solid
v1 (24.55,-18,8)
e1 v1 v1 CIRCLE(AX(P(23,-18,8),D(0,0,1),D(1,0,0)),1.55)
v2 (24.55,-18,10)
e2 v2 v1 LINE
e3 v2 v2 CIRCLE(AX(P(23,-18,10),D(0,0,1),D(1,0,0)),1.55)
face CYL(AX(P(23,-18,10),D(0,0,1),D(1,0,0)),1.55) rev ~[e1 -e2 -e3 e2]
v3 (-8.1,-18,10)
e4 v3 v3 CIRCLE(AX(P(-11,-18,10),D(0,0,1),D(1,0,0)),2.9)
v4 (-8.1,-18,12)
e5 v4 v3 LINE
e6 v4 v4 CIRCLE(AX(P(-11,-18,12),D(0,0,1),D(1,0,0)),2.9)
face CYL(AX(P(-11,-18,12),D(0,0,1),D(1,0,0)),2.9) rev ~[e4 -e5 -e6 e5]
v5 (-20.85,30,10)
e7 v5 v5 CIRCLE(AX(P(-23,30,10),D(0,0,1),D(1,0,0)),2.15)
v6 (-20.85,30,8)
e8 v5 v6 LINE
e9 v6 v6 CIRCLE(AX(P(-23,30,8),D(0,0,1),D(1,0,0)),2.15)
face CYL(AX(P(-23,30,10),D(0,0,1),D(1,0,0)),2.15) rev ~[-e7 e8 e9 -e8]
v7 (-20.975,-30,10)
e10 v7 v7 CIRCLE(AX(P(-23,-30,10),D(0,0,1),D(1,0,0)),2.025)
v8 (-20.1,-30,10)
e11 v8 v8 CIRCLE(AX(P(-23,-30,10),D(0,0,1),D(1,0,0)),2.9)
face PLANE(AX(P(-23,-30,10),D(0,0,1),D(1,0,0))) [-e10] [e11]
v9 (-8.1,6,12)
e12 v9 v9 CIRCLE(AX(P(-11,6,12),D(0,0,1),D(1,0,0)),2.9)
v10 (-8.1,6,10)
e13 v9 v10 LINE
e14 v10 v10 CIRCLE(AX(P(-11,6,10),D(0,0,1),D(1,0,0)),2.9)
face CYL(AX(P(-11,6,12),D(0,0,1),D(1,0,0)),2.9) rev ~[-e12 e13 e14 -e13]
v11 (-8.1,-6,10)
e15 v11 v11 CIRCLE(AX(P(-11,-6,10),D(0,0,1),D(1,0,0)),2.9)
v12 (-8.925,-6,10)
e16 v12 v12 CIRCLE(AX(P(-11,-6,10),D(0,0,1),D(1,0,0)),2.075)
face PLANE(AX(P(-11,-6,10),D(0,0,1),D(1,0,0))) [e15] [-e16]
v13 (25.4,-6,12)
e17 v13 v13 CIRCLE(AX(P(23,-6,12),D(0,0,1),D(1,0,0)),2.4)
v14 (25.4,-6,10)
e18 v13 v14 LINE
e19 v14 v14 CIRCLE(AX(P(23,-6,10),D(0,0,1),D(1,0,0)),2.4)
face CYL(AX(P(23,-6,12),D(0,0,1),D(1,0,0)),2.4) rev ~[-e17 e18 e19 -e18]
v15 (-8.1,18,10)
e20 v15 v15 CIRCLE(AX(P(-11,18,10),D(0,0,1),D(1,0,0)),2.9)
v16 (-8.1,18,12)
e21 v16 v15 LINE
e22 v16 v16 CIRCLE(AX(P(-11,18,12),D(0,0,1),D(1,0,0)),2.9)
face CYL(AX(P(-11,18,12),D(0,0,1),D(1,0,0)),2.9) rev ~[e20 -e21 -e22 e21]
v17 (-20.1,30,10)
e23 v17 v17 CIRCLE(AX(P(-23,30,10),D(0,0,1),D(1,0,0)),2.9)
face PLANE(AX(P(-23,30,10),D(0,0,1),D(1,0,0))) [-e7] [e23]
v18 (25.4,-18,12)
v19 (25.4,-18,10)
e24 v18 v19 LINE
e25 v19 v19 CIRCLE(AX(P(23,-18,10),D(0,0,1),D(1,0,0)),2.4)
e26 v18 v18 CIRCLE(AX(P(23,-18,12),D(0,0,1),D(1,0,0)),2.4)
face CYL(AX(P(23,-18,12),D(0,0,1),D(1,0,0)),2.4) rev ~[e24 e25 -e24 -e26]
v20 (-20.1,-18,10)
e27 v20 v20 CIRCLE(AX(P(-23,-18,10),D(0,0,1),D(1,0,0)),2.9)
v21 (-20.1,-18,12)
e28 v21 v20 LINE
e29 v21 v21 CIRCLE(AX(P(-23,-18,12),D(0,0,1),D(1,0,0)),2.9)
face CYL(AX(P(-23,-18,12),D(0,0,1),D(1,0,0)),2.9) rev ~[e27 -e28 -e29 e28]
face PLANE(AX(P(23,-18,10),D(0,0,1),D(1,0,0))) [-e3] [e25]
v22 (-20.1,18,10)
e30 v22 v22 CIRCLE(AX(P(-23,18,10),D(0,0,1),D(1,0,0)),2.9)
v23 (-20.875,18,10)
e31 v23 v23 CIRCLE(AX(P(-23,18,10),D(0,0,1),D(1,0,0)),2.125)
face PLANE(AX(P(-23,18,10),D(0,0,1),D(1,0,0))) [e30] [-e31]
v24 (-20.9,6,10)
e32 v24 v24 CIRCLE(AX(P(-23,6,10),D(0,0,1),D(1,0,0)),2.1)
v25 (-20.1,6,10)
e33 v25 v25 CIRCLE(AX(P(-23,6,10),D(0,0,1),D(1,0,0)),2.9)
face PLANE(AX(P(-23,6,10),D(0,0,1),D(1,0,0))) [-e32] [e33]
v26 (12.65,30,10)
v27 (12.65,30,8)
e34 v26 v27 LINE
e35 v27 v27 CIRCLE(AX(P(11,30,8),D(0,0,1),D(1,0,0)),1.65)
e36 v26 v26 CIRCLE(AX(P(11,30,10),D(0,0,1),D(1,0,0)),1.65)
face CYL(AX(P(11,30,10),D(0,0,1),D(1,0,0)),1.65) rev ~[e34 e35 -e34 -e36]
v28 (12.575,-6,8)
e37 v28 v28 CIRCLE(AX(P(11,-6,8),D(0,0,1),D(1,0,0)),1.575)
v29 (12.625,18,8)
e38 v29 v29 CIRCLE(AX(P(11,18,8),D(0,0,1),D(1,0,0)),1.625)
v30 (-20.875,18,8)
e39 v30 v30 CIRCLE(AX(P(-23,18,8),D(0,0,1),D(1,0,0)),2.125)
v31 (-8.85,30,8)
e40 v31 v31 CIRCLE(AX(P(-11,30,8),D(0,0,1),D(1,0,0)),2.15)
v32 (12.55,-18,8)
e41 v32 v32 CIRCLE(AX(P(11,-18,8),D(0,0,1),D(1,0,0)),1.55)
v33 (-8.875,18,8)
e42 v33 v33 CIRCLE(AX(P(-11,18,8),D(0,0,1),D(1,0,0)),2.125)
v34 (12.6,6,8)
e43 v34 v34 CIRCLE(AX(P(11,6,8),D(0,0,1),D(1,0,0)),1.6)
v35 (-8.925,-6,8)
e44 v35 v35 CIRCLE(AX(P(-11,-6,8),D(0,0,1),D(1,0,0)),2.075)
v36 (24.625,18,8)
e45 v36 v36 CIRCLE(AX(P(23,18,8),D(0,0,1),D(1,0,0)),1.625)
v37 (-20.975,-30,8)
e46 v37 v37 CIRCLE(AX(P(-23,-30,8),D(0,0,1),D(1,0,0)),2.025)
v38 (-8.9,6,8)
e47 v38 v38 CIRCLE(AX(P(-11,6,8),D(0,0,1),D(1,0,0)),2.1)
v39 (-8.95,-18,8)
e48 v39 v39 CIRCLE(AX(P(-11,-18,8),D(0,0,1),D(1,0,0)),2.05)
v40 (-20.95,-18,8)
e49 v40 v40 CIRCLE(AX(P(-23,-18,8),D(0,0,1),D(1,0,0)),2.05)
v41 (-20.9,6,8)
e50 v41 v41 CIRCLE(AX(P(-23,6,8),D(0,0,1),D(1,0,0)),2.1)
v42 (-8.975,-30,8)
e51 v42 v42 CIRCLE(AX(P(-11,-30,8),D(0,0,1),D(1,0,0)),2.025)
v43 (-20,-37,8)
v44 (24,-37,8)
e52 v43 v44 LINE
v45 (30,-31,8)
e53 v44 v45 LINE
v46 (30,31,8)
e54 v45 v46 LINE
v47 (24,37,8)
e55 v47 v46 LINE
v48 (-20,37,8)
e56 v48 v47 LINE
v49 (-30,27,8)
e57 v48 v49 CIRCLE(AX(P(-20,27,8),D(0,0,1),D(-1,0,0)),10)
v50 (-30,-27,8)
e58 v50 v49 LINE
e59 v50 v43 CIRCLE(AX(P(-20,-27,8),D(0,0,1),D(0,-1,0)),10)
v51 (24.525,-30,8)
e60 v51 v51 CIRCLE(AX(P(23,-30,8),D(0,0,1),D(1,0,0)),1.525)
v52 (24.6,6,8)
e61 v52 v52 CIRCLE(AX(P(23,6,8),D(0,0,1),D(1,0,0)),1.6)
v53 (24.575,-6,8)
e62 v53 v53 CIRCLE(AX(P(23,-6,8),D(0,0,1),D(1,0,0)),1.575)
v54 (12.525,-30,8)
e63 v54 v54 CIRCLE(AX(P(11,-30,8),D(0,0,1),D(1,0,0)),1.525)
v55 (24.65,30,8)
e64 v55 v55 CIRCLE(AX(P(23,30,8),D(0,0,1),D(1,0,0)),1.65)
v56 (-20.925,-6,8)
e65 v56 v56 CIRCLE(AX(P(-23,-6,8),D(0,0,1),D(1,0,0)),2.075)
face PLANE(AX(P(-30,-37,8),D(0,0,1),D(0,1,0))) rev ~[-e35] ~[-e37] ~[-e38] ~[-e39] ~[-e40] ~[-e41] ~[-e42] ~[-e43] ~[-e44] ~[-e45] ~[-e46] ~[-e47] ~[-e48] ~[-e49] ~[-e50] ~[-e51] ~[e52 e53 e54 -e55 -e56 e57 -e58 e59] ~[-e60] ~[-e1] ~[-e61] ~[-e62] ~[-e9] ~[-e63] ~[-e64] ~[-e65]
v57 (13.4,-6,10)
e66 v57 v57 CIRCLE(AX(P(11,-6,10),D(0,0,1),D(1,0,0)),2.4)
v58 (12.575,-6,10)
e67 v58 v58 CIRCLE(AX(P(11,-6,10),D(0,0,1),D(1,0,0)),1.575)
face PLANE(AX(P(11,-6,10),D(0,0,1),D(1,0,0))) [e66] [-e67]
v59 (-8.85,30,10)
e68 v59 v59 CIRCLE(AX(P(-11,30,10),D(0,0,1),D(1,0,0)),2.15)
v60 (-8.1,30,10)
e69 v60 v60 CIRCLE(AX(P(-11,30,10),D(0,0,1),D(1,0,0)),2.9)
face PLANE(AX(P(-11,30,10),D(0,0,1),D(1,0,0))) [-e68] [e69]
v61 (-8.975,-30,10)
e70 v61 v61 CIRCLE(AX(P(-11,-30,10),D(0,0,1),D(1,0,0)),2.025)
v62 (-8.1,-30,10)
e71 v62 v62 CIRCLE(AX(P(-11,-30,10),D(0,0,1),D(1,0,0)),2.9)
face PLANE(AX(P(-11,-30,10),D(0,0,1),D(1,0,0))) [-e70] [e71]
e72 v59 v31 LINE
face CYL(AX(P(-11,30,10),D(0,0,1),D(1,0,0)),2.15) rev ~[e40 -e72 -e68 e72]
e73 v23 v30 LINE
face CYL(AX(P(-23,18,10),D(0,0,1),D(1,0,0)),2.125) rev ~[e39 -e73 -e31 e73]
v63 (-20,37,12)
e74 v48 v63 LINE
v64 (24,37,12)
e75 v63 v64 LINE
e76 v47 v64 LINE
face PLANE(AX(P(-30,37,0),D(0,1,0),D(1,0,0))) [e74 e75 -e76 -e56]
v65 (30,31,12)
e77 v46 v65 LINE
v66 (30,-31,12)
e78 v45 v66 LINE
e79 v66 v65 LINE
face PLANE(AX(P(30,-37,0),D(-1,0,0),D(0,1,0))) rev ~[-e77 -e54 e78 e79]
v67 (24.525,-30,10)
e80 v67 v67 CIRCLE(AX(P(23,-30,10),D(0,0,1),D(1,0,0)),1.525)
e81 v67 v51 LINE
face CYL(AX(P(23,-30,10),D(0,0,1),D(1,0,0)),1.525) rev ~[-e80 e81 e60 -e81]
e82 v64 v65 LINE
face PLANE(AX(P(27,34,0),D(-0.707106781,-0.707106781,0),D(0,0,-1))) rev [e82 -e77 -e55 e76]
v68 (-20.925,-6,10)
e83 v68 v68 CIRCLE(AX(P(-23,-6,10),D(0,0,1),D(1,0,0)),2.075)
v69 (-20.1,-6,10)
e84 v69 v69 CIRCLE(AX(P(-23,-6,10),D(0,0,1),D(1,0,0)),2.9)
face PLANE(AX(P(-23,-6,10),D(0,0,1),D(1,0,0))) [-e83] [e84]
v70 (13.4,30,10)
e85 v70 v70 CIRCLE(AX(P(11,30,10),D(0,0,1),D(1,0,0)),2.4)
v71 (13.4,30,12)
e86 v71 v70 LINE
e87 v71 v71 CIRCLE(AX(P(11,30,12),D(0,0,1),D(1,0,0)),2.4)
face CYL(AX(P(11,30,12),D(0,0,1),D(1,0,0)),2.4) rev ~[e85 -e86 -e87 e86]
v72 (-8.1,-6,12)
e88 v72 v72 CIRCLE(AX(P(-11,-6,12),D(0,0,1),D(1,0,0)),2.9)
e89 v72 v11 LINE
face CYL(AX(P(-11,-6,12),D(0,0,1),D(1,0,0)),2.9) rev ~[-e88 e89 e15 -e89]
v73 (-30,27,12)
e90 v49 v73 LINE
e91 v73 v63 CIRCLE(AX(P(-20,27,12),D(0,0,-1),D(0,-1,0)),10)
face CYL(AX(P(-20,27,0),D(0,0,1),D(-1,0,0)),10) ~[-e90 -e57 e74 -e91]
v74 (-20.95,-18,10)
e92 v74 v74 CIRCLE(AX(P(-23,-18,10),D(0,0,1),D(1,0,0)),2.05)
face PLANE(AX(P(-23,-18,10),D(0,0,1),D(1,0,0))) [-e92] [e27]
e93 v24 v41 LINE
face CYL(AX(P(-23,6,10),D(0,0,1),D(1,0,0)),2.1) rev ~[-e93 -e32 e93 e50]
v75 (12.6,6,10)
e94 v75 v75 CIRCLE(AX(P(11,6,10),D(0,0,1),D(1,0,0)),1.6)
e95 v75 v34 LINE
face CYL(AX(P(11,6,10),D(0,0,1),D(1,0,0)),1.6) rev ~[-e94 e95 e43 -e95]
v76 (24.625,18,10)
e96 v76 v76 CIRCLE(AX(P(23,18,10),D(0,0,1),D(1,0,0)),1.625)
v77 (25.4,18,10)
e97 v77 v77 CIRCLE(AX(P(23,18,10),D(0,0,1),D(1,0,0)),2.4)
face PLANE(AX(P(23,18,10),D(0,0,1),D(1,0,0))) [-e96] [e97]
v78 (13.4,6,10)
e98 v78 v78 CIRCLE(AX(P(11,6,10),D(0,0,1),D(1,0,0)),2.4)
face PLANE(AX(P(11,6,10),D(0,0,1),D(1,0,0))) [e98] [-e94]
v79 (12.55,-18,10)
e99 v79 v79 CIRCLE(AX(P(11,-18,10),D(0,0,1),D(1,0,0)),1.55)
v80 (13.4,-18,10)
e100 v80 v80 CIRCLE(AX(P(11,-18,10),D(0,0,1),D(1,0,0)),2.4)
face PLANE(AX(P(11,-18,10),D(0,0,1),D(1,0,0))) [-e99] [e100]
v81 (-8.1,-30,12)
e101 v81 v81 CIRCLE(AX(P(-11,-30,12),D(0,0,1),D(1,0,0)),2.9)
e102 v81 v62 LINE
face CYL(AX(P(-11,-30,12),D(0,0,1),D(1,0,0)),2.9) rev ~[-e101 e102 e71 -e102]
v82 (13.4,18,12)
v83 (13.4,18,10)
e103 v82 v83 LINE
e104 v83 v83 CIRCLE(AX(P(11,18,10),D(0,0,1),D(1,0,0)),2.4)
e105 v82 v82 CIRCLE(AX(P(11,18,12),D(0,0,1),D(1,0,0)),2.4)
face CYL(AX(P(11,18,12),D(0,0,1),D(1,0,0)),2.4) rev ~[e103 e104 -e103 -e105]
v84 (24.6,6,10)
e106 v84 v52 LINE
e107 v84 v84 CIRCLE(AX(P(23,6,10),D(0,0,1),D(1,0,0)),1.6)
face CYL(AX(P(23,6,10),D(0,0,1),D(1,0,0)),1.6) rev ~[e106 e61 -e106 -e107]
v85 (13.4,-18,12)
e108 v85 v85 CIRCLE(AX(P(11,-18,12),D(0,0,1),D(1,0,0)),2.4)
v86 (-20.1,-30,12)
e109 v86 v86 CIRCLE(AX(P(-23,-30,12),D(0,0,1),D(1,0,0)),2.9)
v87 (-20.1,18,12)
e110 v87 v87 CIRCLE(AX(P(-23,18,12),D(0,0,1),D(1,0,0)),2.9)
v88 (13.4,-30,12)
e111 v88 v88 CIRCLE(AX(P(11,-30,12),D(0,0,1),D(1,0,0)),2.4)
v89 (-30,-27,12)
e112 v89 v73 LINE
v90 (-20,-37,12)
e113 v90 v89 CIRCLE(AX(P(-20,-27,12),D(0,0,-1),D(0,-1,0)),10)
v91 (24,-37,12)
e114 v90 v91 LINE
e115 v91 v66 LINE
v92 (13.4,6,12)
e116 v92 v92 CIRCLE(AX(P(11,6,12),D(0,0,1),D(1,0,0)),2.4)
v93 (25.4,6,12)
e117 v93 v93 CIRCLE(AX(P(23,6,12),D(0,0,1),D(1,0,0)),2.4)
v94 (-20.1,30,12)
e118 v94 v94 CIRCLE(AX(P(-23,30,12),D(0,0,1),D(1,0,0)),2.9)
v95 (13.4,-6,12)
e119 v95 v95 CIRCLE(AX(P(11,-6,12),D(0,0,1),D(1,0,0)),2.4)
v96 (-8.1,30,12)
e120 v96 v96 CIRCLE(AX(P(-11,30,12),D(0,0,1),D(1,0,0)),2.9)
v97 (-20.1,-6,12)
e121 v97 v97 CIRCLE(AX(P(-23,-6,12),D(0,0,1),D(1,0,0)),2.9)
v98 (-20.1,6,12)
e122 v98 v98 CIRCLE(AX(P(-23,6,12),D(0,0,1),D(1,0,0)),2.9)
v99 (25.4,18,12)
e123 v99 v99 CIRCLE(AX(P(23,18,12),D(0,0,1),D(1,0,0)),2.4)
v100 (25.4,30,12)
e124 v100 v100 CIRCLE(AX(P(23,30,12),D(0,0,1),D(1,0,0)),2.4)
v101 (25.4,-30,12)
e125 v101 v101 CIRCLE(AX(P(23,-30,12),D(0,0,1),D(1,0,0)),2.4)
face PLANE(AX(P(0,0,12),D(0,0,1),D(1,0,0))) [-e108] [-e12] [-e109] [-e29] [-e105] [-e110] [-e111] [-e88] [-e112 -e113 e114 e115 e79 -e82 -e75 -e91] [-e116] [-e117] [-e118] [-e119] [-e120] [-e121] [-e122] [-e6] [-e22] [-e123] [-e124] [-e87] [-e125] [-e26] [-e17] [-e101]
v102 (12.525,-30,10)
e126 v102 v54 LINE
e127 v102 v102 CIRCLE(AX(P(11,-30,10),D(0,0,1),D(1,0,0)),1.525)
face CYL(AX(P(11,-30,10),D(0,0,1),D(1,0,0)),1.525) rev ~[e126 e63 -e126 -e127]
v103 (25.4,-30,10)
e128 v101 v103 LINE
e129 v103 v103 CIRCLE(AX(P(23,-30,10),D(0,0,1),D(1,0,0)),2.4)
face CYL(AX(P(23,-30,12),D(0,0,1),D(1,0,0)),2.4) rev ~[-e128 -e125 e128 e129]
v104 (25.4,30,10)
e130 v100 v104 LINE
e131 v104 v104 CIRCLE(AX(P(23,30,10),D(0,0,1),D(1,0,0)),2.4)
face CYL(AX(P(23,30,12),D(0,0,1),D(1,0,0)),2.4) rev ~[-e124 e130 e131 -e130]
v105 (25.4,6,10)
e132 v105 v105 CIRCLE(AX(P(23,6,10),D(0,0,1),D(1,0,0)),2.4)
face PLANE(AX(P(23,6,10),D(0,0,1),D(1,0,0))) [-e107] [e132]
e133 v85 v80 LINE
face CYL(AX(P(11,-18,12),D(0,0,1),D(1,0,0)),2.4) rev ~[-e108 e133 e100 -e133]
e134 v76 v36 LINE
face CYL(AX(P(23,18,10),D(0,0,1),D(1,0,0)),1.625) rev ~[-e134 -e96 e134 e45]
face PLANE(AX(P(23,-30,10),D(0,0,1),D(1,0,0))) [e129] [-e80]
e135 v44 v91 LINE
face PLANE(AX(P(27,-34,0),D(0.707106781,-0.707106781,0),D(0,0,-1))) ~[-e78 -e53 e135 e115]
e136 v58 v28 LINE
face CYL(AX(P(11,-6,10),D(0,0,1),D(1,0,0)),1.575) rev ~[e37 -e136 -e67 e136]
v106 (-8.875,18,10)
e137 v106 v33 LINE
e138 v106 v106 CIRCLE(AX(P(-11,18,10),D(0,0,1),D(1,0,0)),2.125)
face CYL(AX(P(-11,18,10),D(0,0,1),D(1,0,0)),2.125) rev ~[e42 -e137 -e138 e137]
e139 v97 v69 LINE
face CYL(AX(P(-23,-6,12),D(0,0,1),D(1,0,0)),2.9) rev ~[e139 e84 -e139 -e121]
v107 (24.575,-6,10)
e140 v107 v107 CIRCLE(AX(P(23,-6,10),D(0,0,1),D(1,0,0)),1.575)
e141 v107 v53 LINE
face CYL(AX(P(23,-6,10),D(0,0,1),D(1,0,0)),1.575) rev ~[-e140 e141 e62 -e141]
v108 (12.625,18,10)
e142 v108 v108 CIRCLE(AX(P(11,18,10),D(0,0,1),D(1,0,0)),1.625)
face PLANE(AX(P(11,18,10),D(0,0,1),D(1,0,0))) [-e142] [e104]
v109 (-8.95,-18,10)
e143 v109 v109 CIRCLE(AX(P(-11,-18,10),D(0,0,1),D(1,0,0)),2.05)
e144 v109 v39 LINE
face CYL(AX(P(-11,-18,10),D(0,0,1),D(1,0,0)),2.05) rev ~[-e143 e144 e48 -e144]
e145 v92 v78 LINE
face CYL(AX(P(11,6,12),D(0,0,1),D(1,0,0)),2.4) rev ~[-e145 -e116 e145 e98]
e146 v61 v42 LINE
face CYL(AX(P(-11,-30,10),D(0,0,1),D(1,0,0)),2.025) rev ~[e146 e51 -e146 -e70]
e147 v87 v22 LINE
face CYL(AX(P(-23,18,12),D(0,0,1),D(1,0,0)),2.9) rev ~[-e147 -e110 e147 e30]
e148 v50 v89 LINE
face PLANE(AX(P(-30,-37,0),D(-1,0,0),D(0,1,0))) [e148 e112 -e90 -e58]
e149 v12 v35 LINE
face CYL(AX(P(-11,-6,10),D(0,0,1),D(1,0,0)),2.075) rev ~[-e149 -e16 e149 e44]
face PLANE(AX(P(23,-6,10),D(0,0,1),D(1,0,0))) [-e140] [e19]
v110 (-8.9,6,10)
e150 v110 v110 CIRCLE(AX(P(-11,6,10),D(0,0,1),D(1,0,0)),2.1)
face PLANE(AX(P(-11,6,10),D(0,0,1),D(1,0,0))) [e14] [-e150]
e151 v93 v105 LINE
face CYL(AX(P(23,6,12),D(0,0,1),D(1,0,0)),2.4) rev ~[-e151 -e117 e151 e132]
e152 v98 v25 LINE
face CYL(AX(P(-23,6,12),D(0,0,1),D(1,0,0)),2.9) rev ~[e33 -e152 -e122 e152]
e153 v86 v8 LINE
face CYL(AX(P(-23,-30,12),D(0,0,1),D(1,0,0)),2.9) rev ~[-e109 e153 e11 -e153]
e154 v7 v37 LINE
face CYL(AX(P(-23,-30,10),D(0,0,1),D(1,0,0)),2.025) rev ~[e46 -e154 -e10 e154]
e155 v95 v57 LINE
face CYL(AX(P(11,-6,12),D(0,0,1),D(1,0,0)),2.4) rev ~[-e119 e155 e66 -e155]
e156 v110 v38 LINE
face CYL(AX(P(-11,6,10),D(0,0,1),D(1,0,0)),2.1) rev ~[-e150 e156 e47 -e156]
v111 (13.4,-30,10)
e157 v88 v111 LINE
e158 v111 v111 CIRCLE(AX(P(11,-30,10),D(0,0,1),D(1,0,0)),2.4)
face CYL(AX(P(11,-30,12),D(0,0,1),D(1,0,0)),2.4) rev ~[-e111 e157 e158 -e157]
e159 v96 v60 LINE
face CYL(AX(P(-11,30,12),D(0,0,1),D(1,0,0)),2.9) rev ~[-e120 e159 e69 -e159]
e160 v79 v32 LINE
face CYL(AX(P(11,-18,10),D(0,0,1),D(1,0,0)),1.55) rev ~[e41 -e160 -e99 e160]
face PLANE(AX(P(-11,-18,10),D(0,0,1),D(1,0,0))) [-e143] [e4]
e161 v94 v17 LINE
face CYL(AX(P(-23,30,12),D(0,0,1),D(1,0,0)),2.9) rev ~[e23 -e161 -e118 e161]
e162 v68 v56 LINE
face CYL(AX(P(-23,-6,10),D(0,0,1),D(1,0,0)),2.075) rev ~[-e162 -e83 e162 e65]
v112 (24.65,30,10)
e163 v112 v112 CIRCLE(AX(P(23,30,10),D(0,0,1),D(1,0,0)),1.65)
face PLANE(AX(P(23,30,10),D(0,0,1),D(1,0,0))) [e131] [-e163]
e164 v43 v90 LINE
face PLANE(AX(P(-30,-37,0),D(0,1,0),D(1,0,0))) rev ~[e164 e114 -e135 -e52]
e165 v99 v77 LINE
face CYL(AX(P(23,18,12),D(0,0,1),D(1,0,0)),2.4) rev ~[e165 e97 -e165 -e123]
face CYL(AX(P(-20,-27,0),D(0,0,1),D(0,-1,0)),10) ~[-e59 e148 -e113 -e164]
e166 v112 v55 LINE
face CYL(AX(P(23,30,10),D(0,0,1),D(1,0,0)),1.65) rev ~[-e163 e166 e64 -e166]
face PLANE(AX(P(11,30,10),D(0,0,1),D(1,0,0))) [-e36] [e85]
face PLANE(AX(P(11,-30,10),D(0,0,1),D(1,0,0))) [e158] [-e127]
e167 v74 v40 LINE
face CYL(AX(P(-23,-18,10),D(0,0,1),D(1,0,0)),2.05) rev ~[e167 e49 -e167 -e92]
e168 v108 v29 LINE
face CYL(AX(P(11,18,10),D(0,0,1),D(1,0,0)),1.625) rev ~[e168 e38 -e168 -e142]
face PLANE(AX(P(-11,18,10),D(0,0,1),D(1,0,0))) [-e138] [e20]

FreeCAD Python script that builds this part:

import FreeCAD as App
import Part
import Sketcher
from FreeCAD import Vector


def edges_at(feature, points):
    """Names of the edges that pass closest to the given points."""
    edges = feature.Shape.Edges
    near = lambda p: min(range(len(edges)), key=lambda i: edges[i].distToShape(Part.Vertex(*p))[0])
    return sorted({f"Edge{near(p) + 1}" for p in points})


def add_polygon(sketch, points):
    """Adds a closed chain of lines whose ends are joined by coincident constraints."""
    first, n = sketch.GeometryCount, len(points)
    for a, b in zip(points, points[1:] + points[:1]):
        sketch.addGeometry(Part.LineSegment(App.Vector(*a, 0), App.Vector(*b, 0)), False)
    for i in range(n):
        sketch.addConstraint(Sketcher.Constraint("Coincident", first + i, 2, first + (i + 1) % n, 1))

doc = App.newDocument("Part")
body = doc.addObject("PartDesign::Body", "Body")

# Sketch on XY plane
sketch1 = doc.addObject("Sketcher::SketchObject", "Sketch")
body.addObject(sketch1)
sketch1.AttachmentSupport = (doc.XY_Plane, [""])
sketch1.MapMode = "FlatFace"
add_polygon(sketch1, [(-30, 37), (-30, -37), (30, -37), (30, 37)])  # lines 0-3
sketch1.addConstraint(Sketcher.Constraint("Vertical", 0))
sketch1.addConstraint(Sketcher.Constraint("Horizontal", 1))
sketch1.addConstraint(Sketcher.Constraint("Vertical", 2))
sketch1.addConstraint(Sketcher.Constraint("Horizontal", 3))
sketch1.addConstraint(Sketcher.Constraint("Symmetric", 0, 2, 2, 2, -1, 1))
sketch1.addConstraint(Sketcher.Constraint("DistanceX", 1, 1, 1, 2, 60.0))
sketch1.addConstraint(Sketcher.Constraint("DistanceY", 0, 2, 0, 1, 74.0))
pad1 = doc.addObject("PartDesign::Pad", "Pad")
body.addObject(pad1)
pad1.Profile = sketch1
pad1.Length = 12

# Sketch on XY plane
sketch2 = doc.addObject("Sketcher::SketchObject", "Sketch001")
body.addObject(sketch2)
sketch2.AttachmentSupport = (doc.XY_Plane, [""])
sketch2.MapMode = "FlatFace"
sketch2.AttachmentOffset = App.Placement(Vector(0, 0, 12), App.Rotation())
sketch2.addGeometry(Part.Circle(Vector(-23, -30, 0), Vector(0, 0, 1), 1.65), False)
sketch2.addGeometry(Part.Circle(Vector(23, -30, 0), Vector(0, 0, 1), 1.15), False)
sketch2.addGeometry(Part.Circle(Vector(-11, -30, 0), Vector(0, 0, 1), 1.65), False)
sketch2.addGeometry(Part.Circle(Vector(-11, -18, 0), Vector(0, 0, 1), 1.65), False)
sketch2.addGeometry(Part.Circle(Vector(-11, -6, 0), Vector(0, 0, 1), 1.65), False)
sketch2.addGeometry(Part.Circle(Vector(-11, 6, 0), Vector(0, 0, 1), 1.65), False)
sketch2.addGeometry(Part.Circle(Vector(-23, -18, 0), Vector(0, 0, 1), 1.65), False)
sketch2.addGeometry(Part.Circle(Vector(-23, -6, 0), Vector(0, 0, 1), 1.65), False)
sketch2.addGeometry(Part.Circle(Vector(-23, 6, 0), Vector(0, 0, 1), 1.65), False)
sketch2.addGeometry(Part.Circle(Vector(11, -30, 0), Vector(0, 0, 1), 1.15), False)
sketch2.addGeometry(Part.Circle(Vector(11, -18, 0), Vector(0, 0, 1), 1.15), False)
sketch2.addGeometry(Part.Circle(Vector(11, -6, 0), Vector(0, 0, 1), 1.15), False)
sketch2.addGeometry(Part.Circle(Vector(11, 6, 0), Vector(0, 0, 1), 1.15), False)
sketch2.addGeometry(Part.Circle(Vector(23, -18, 0), Vector(0, 0, 1), 1.15), False)
sketch2.addGeometry(Part.Circle(Vector(23, -6, 0), Vector(0, 0, 1), 1.15), False)
sketch2.addGeometry(Part.Circle(Vector(23, 6, 0), Vector(0, 0, 1), 1.15), False)
sketch2.addGeometry(Part.Circle(Vector(-23, 18, 0), Vector(0, 0, 1), 1.65), False)
sketch2.addGeometry(Part.Circle(Vector(-11, 18, 0), Vector(0, 0, 1), 1.65), False)
sketch2.addGeometry(Part.Circle(Vector(-23, 30, 0), Vector(0, 0, 1), 1.65), False)
sketch2.addGeometry(Part.Circle(Vector(-11, 30, 0), Vector(0, 0, 1), 1.65), False)
sketch2.addGeometry(Part.Circle(Vector(23, 18, 0), Vector(0, 0, 1), 1.15), False)
sketch2.addGeometry(Part.Circle(Vector(11, 18, 0), Vector(0, 0, 1), 1.15), False)
sketch2.addGeometry(Part.Circle(Vector(23, 30, 0), Vector(0, 0, 1), 1.15), False)
sketch2.addGeometry(Part.Circle(Vector(11, 30, 0), Vector(0, 0, 1), 1.15), False)
sketch2.addConstraint(Sketcher.Constraint("Equal", 0, 2))
sketch2.addConstraint(Sketcher.Constraint("Equal", 2, 3))
sketch2.addConstraint(Sketcher.Constraint("Equal", 3, 4))
sketch2.addConstraint(Sketcher.Constraint("Equal", 4, 5))
sketch2.addConstraint(Sketcher.Constraint("Equal", 5, 6))
sketch2.addConstraint(Sketcher.Constraint("Equal", 6, 7))
sketch2.addConstraint(Sketcher.Constraint("Equal", 7, 8))
sketch2.addConstraint(Sketcher.Constraint("Equal", 1, 9))
sketch2.addConstraint(Sketcher.Constraint("Equal", 9, 10))
sketch2.addConstraint(Sketcher.Constraint("Equal", 10, 11))
sketch2.addConstraint(Sketcher.Constraint("Equal", 11, 12))
sketch2.addConstraint(Sketcher.Constraint("Equal", 12, 13))
sketch2.addConstraint(Sketcher.Constraint("Equal", 13, 14))
sketch2.addConstraint(Sketcher.Constraint("Equal", 14, 15))
sketch2.addConstraint(Sketcher.Constraint("Equal", 8, 16))
sketch2.addConstraint(Sketcher.Constraint("Equal", 16, 17))
sketch2.addConstraint(Sketcher.Constraint("Equal", 17, 18))
sketch2.addConstraint(Sketcher.Constraint("Equal", 18, 19))
sketch2.addConstraint(Sketcher.Constraint("Equal", 15, 20))
sketch2.addConstraint(Sketcher.Constraint("Equal", 20, 21))
sketch2.addConstraint(Sketcher.Constraint("Equal", 21, 22))
sketch2.addConstraint(Sketcher.Constraint("Equal", 22, 23))
sketch2.addConstraint(Sketcher.Constraint("Symmetric", 5, 3, 11, 3, -1, 1))
sketch2.addConstraint(Sketcher.Constraint("Symmetric", 4, 3, 12, 3, -1, 1))
sketch2.addConstraint(Sketcher.Constraint("Symmetric", 8, 3, 14, 3, -1, 1))
sketch2.addConstraint(Sketcher.Constraint("Symmetric", 7, 3, 15, 3, -1, 1))
sketch2.addConstraint(Sketcher.Constraint("Symmetric", 13, 3, 16, 3, -1, 1))
sketch2.addConstraint(Sketcher.Constraint("Symmetric", 10, 3, 17, 3, -1, 1))
sketch2.addConstraint(Sketcher.Constraint("Symmetric", 1, 3, 18, 3, -1, 1))
sketch2.addConstraint(Sketcher.Constraint("Symmetric", 9, 3, 19, 3, -1, 1))
sketch2.addConstraint(Sketcher.Constraint("Symmetric", 6, 3, 20, 3, -1, 1))
sketch2.addConstraint(Sketcher.Constraint("Symmetric", 3, 3, 21, 3, -1, 1))
sketch2.addConstraint(Sketcher.Constraint("Symmetric", 0, 3, 22, 3, -1, 1))
sketch2.addConstraint(Sketcher.Constraint("Symmetric", 2, 3, 23, 3, -1, 1))
sketch2.addConstraint(Sketcher.Constraint("Symmetric", 0, 3, 1, 3, -2))
sketch2.addConstraint(Sketcher.Constraint("Symmetric", 2, 3, 9, 3, -2))
sketch2.addConstraint(Sketcher.Constraint("Symmetric", 3, 3, 10, 3, -2))
sketch2.addConstraint(Sketcher.Constraint("Symmetric", 4, 3, 11, 3, -2))
sketch2.addConstraint(Sketcher.Constraint("Symmetric", 6, 3, 13, 3, -2))
sketch2.addConstraint(Sketcher.Constraint("Symmetric", 7, 3, 14, 3, -2))
sketch2.addConstraint(Sketcher.Constraint("Horizontal", 1, 3, 2, 3))
sketch2.addConstraint(Sketcher.Constraint("Horizontal", 3, 3, 6, 3))
sketch2.addConstraint(Sketcher.Constraint("Horizontal", 4, 3, 7, 3))
sketch2.addConstraint(Sketcher.Constraint("Vertical", 2, 3, 3, 3))
sketch2.addConstraint(Sketcher.Constraint("Vertical", 3, 3, 4, 3))
sketch2.addConstraint(Sketcher.Constraint("Vertical", 0, 3, 6, 3))
sketch2.addConstraint(Sketcher.Constraint("Vertical", 6, 3, 7, 3))
sketch2.addConstraint(Sketcher.Constraint("Diameter", 0, 3.3))
sketch2.addConstraint(Sketcher.Constraint("Diameter", 1, 2.3))
sketch2.addConstraint(Sketcher.Constraint("DistanceX", 0, 3, -1, 1, 23.0))
sketch2.addConstraint(Sketcher.Constraint("DistanceY", 0, 3, -1, 1, 30.0))
sketch2.addConstraint(Sketcher.Constraint("DistanceX", 2, 3, -1, 1, 11.0))
sketch2.addConstraint(Sketcher.Constraint("DistanceY", 3, 3, -1, 1, 18.0))
sketch2.addConstraint(Sketcher.Constraint("DistanceY", 4, 3, -1, 1, 6.0))
pocket1 = doc.addObject("PartDesign::Pocket", "Pocket")
body.addObject(pocket1)
pocket1.Profile = sketch2
pocket1.Type = "ThroughAll"
doc.recompute()

chamfer = doc.addObject("PartDesign::Chamfer", "Chamfer")
body.addObject(chamfer)
chamfer.Base = (pocket1, edges_at(pocket1, [(30, 37, 6), (30, -37, 6)]))
chamfer.Size = 6
doc.recompute()

fillet = doc.addObject("PartDesign::Fillet", "Fillet")
body.addObject(fillet)
fillet.Base = (chamfer, edges_at(chamfer, [(-30, 37, 6), (-30, -37, 6)]))
fillet.Radius = 10

# Sketch on XY plane
sketch3 = doc.addObject("Sketcher::SketchObject", "Sketch002")
body.addObject(sketch3)
sketch3.AttachmentSupport = (doc.XY_Plane, [""])
sketch3.MapMode = "FlatFace"
sketch3.AttachmentOffset = App.Placement(Vector(0, 0, 12), App.Rotation())
sketch3.addGeometry(Part.Circle(Vector(-23, -30, 0), Vector(0, 0, 1), 2.9), False)
sketch3.addGeometry(Part.Circle(Vector(-11, -30, 0), Vector(0, 0, 1), 2.9), False)
sketch3.addGeometry(Part.Circle(Vector(-11, -18, 0), Vector(0, 0, 1), 2.9), False)
sketch3.addGeometry(Part.Circle(Vector(-11, -6, 0), Vector(0, 0, 1), 2.9), False)
sketch3.addGeometry(Part.Circle(Vector(-11, 6, 0), Vector(0, 0, 1), 2.9), False)
sketch3.addGeometry(Part.Circle(Vector(-23, -18, 0), Vector(0, 0, 1), 2.9), False)
sketch3.addGeometry(Part.Circle(Vector(-23, -6, 0), Vector(0, 0, 1), 2.9), False)
sketch3.addGeometry(Part.Circle(Vector(-23, 6, 0), Vector(0, 0, 1), 2.9), False)
sketch3.addGeometry(Part.Circle(Vector(11, -30, 0), Vector(0, 0, 1), 2.4), False)
sketch3.addGeometry(Part.Circle(Vector(23, -30, 0), Vector(0, 0, 1), 2.4), False)
sketch3.addGeometry(Part.Circle(Vector(23, -18, 0), Vector(0, 0, 1), 2.4), False)
sketch3.addGeometry(Part.Circle(Vector(23, -6, 0), Vector(0, 0, 1), 2.4), False)
sketch3.addGeometry(Part.Circle(Vector(23, 6, 0), Vector(0, 0, 1), 2.4), False)
sketch3.addGeometry(Part.Circle(Vector(11, -18, 0), Vector(0, 0, 1), 2.4), False)
sketch3.addGeometry(Part.Circle(Vector(11, -6, 0), Vector(0, 0, 1), 2.4), False)
sketch3.addGeometry(Part.Circle(Vector(11, 6, 0), Vector(0, 0, 1), 2.4), False)
sketch3.addGeometry(Part.Circle(Vector(-23, 18, 0), Vector(0, 0, 1), 2.9), False)
sketch3.addGeometry(Part.Circle(Vector(-11, 18, 0), Vector(0, 0, 1), 2.9), False)
sketch3.addGeometry(Part.Circle(Vector(-23, 30, 0), Vector(0, 0, 1), 2.9), False)
sketch3.addGeometry(Part.Circle(Vector(-11, 30, 0), Vector(0, 0, 1), 2.9), False)
sketch3.addGeometry(Part.Circle(Vector(11, 18, 0), Vector(0, 0, 1), 2.4), False)
sketch3.addGeometry(Part.Circle(Vector(23, 18, 0), Vector(0, 0, 1), 2.4), False)
sketch3.addGeometry(Part.Circle(Vector(11, 30, 0), Vector(0, 0, 1), 2.4), False)
sketch3.addGeometry(Part.Circle(Vector(23, 30, 0), Vector(0, 0, 1), 2.4), False)
sketch3.addConstraint(Sketcher.Constraint("Equal", 0, 1))
sketch3.addConstraint(Sketcher.Constraint("Equal", 1, 2))
sketch3.addConstraint(Sketcher.Constraint("Equal", 2, 3))
sketch3.addConstraint(Sketcher.Constraint("Equal", 3, 4))
sketch3.addConstraint(Sketcher.Constraint("Equal", 4, 5))
sketch3.addConstraint(Sketcher.Constraint("Equal", 5, 6))
sketch3.addConstraint(Sketcher.Constraint("Equal", 6, 7))
sketch3.addConstraint(Sketcher.Constraint("Equal", 8, 9))
sketch3.addConstraint(Sketcher.Constraint("Equal", 9, 10))
sketch3.addConstraint(Sketcher.Constraint("Equal", 10, 11))
sketch3.addConstraint(Sketcher.Constraint("Equal", 11, 12))
sketch3.addConstraint(Sketcher.Constraint("Equal", 12, 13))
sketch3.addConstraint(Sketcher.Constraint("Equal", 13, 14))
sketch3.addConstraint(Sketcher.Constraint("Equal", 14, 15))
sketch3.addConstraint(Sketcher.Constraint("Equal", 7, 16))
sketch3.addConstraint(Sketcher.Constraint("Equal", 16, 17))
sketch3.addConstraint(Sketcher.Constraint("Equal", 17, 18))
sketch3.addConstraint(Sketcher.Constraint("Equal", 18, 19))
sketch3.addConstraint(Sketcher.Constraint("Equal", 15, 20))
sketch3.addConstraint(Sketcher.Constraint("Equal", 20, 21))
sketch3.addConstraint(Sketcher.Constraint("Equal", 21, 22))
sketch3.addConstraint(Sketcher.Constraint("Equal", 22, 23))
sketch3.addConstraint(Sketcher.Constraint("Symmetric", 7, 3, 11, 3, -1, 1))
sketch3.addConstraint(Sketcher.Constraint("Symmetric", 6, 3, 12, 3, -1, 1))
sketch3.addConstraint(Sketcher.Constraint("Symmetric", 4, 3, 14, 3, -1, 1))
sketch3.addConstraint(Sketcher.Constraint("Symmetric", 3, 3, 15, 3, -1, 1))
sketch3.addConstraint(Sketcher.Constraint("Symmetric", 10, 3, 16, 3, -1, 1))
sketch3.addConstraint(Sketcher.Constraint("Symmetric", 13, 3, 17, 3, -1, 1))
sketch3.addConstraint(Sketcher.Constraint("Symmetric", 9, 3, 18, 3, -1, 1))
sketch3.addConstraint(Sketcher.Constraint("Symmetric", 8, 3, 19, 3, -1, 1))
sketch3.addConstraint(Sketcher.Constraint("Symmetric", 2, 3, 20, 3, -1, 1))
sketch3.addConstraint(Sketcher.Constraint("Symmetric", 5, 3, 21, 3, -1, 1))
sketch3.addConstraint(Sketcher.Constraint("Symmetric", 1, 3, 22, 3, -1, 1))
sketch3.addConstraint(Sketcher.Constraint("Symmetric", 0, 3, 23, 3, -1, 1))
sketch3.addConstraint(Sketcher.Constraint("Symmetric", 1, 3, 8, 3, -2))
sketch3.addConstraint(Sketcher.Constraint("Symmetric", 0, 3, 9, 3, -2))
sketch3.addConstraint(Sketcher.Constraint("Symmetric", 5, 3, 10, 3, -2))
sketch3.addConstraint(Sketcher.Constraint("Symmetric", 6, 3, 11, 3, -2))
sketch3.addConstraint(Sketcher.Constraint("Symmetric", 2, 3, 13, 3, -2))
sketch3.addConstraint(Sketcher.Constraint("Symmetric", 3, 3, 14, 3, -2))
sketch3.addConstraint(Sketcher.Constraint("Horizontal", 0, 3, 1, 3))
sketch3.addConstraint(Sketcher.Constraint("Horizontal", 2, 3, 5, 3))
sketch3.addConstraint(Sketcher.Constraint("Horizontal", 3, 3, 6, 3))
sketch3.addConstraint(Sketcher.Constraint("Vertical", 1, 3, 2, 3))
sketch3.addConstraint(Sketcher.Constraint("Vertical", 2, 3, 3, 3))
sketch3.addConstraint(Sketcher.Constraint("Vertical", 0, 3, 5, 3))
sketch3.addConstraint(Sketcher.Constraint("Vertical", 5, 3, 6, 3))
sketch3.addConstraint(Sketcher.Constraint("Diameter", 0, 5.8))
sketch3.addConstraint(Sketcher.Constraint("Diameter", 8, 4.8))
sketch3.addConstraint(Sketcher.Constraint("DistanceX", 0, 3, -1, 1, 23.0))
sketch3.addConstraint(Sketcher.Constraint("DistanceY", 0, 3, -1, 1, 30.0))
sketch3.addConstraint(Sketcher.Constraint("DistanceX", 1, 3, -1, 1, 11.0))
sketch3.addConstraint(Sketcher.Constraint("DistanceY", 2, 3, -1, 1, 18.0))
sketch3.addConstraint(Sketcher.Constraint("DistanceY", 3, 3, -1, 1, 6.0))
pocket2 = doc.addObject("PartDesign::Pocket", "Pocket001")
body.addObject(pocket2)
pocket2.Profile = sketch3
pocket2.Length = 2

# Sketch on XY plane
sketch4 = doc.addObject("Sketcher::SketchObject", "Sketch003")
body.addObject(sketch4)
sketch4.AttachmentSupport = (doc.XY_Plane, [""])
sketch4.MapMode = "FlatFace"
sketch4.AttachmentOffset = App.Placement(Vector(0, 0, 10), App.Rotation())
sketch4.addGeometry(Part.Circle(Vector(-23, 30, 0), Vector(0, 0, 1), 2.15), False)
sketch4.addGeometry(Part.Circle(Vector(-23, 18, 0), Vector(0, 0, 1), 2.125), False)
sketch4.addGeometry(Part.Circle(Vector(-23, 6, 0), Vector(0, 0, 1), 2.1), False)
sketch4.addGeometry(Part.Circle(Vector(-23, -6, 0), Vector(0, 0, 1), 2.075), False)
sketch4.addGeometry(Part.Circle(Vector(-23, -18, 0), Vector(0, 0, 1), 2.05), False)
sketch4.addGeometry(Part.Circle(Vector(-23, -30, 0), Vector(0, 0, 1), 2.025), False)
sketch4.addGeometry(Part.Circle(Vector(-11, 30, 0), Vector(0, 0, 1), 2.15), False)
sketch4.addGeometry(Part.Circle(Vector(11, -30, 0), Vector(0, 0, 1), 1.525), False)
sketch4.addGeometry(Part.Circle(Vector(11, -18, 0), Vector(0, 0, 1), 1.55), False)
sketch4.addGeometry(Part.Circle(Vector(11, -6, 0), Vector(0, 0, 1), 1.575), False)
sketch4.addGeometry(Part.Circle(Vector(11, 6, 0), Vector(0, 0, 1), 1.6), False)
sketch4.addGeometry(Part.Circle(Vector(11, 18, 0), Vector(0, 0, 1), 1.625), False)
sketch4.addGeometry(Part.Circle(Vector(11, 30, 0), Vector(0, 0, 1), 1.65), False)
sketch4.addGeometry(Part.Circle(Vector(-11, 18, 0), Vector(0, 0, 1), 2.125), False)
sketch4.addGeometry(Part.Circle(Vector(-11, 6, 0), Vector(0, 0, 1), 2.1), False)
sketch4.addGeometry(Part.Circle(Vector(-11, -6, 0), Vector(0, 0, 1), 2.075), False)
sketch4.addGeometry(Part.Circle(Vector(-11, -18, 0), Vector(0, 0, 1), 2.05), False)
sketch4.addGeometry(Part.Circle(Vector(-11, -30, 0), Vector(0, 0, 1), 2.025), False)
sketch4.addGeometry(Part.Circle(Vector(23, -30, 0), Vector(0, 0, 1), 1.525), False)
sketch4.addGeometry(Part.Circle(Vector(23, -18, 0), Vector(0, 0, 1), 1.55), False)
sketch4.addGeometry(Part.Circle(Vector(23, -6, 0), Vector(0, 0, 1), 1.575), False)
sketch4.addGeometry(Part.Circle(Vector(23, 6, 0), Vector(0, 0, 1), 1.6), False)
sketch4.addGeometry(Part.Circle(Vector(23, 18, 0), Vector(0, 0, 1), 1.625), False)
sketch4.addGeometry(Part.Circle(Vector(23, 30, 0), Vector(0, 0, 1), 1.65), False)
sketch4.addConstraint(Sketcher.Constraint("Equal", 0, 6))
sketch4.addConstraint(Sketcher.Constraint("Equal", 1, 13))
sketch4.addConstraint(Sketcher.Constraint("Equal", 2, 14))
sketch4.addConstraint(Sketcher.Constraint("Equal", 3, 15))
sketch4.addConstraint(Sketcher.Constraint("Equal", 4, 16))
sketch4.addConstraint(Sketcher.Constraint("Equal", 5, 17))
sketch4.addConstraint(Sketcher.Constraint("Equal", 7, 18))
sketch4.addConstraint(Sketcher.Constraint("Equal", 8, 19))
sketch4.addConstraint(Sketcher.Constraint("Equal", 9, 20))
sketch4.addConstraint(Sketcher.Constraint("Equal", 10, 21))
sketch4.addConstraint(Sketcher.Constraint("Equal", 11, 22))
sketch4.addConstraint(Sketcher.Constraint("Equal", 12, 23))
sketch4.addConstraint(Sketcher.Constraint("Symmetric", 6, 3, 7, 3, -1, 1))
sketch4.addConstraint(Sketcher.Constraint("Symmetric", 8, 3, 13, 3, -1, 1))
sketch4.addConstraint(Sketcher.Constraint("Symmetric", 9, 3, 14, 3, -1, 1))
sketch4.addConstraint(Sketcher.Constraint("Symmetric", 10, 3, 15, 3, -1, 1))
sketch4.addConstraint(Sketcher.Constraint("Symmetric", 11, 3, 16, 3, -1, 1))
sketch4.addConstraint(Sketcher.Constraint("Symmetric", 12, 3, 17, 3, -1, 1))
sketch4.addConstraint(Sketcher.Constraint("Symmetric", 0, 3, 18, 3, -1, 1))
sketch4.addConstraint(Sketcher.Constraint("Symmetric", 1, 3, 19, 3, -1, 1))
sketch4.addConstraint(Sketcher.Constraint("Symmetric", 2, 3, 20, 3, -1, 1))
sketch4.addConstraint(Sketcher.Constraint("Symmetric", 3, 3, 21, 3, -1, 1))
sketch4.addConstraint(Sketcher.Constraint("Symmetric", 4, 3, 22, 3, -1, 1))
sketch4.addConstraint(Sketcher.Constraint("Symmetric", 5, 3, 23, 3, -1, 1))
sketch4.addConstraint(Sketcher.Constraint("Symmetric", 6, 3, 12, 3, -2))
sketch4.addConstraint(Sketcher.Constraint("Symmetric", 11, 3, 13, 3, -2))
sketch4.addConstraint(Sketcher.Constraint("Symmetric", 10, 3, 14, 3, -2))
sketch4.addConstraint(Sketcher.Constraint("Symmetric", 5, 3, 18, 3, -2))
sketch4.addConstraint(Sketcher.Constraint("Symmetric", 4, 3, 19, 3, -2))
sketch4.addConstraint(Sketcher.Constraint("Symmetric", 3, 3, 20, 3, -2))
sketch4.addConstraint(Sketcher.Constraint("Horizontal", 0, 3, 6, 3))
sketch4.addConstraint(Sketcher.Constraint("Horizontal", 4, 3, 8, 3))
sketch4.addConstraint(Sketcher.Constraint("Horizontal", 3, 3, 9, 3))
sketch4.addConstraint(Sketcher.Constraint("Vertical", 0, 3, 1, 3))
sketch4.addConstraint(Sketcher.Constraint("Vertical", 1, 3, 2, 3))
sketch4.addConstraint(Sketcher.Constraint("Vertical", 7, 3, 8, 3))
sketch4.addConstraint(Sketcher.Constraint("Vertical", 8, 3, 9, 3))
sketch4.addConstraint(Sketcher.Constraint("Diameter", 0, 4.3))
sketch4.addConstraint(Sketcher.Constraint("Diameter", 2, 4.2))
sketch4.addConstraint(Sketcher.Constraint("Diameter", 4, 4.1))
sketch4.addConstraint(Sketcher.Constraint("Diameter", 8, 3.1))
sketch4.addConstraint(Sketcher.Constraint("Diameter", 10, 3.2))
sketch4.addConstraint(Sketcher.Constraint("Diameter", 12, 3.3))
sketch4.addConstraint(Sketcher.Constraint("Diameter", 1, 4.25))
sketch4.addConstraint(Sketcher.Constraint("Diameter", 3, 4.15))
sketch4.addConstraint(Sketcher.Constraint("Diameter", 5, 4.05))
sketch4.addConstraint(Sketcher.Constraint("Diameter", 7, 3.05))
sketch4.addConstraint(Sketcher.Constraint("Diameter", 9, 3.15))
sketch4.addConstraint(Sketcher.Constraint("Diameter", 11, 3.25))
sketch4.addConstraint(Sketcher.Constraint("DistanceX", 0, 3, -1, 1, 23.0))
sketch4.addConstraint(Sketcher.Constraint("DistanceY", -1, 1, 0, 3, 30.0))
sketch4.addConstraint(Sketcher.Constraint("DistanceY", -1, 1, 1, 3, 18.0))
sketch4.addConstraint(Sketcher.Constraint("DistanceY", -1, 1, 2, 3, 6.0))
sketch4.addConstraint(Sketcher.Constraint("DistanceX", 6, 3, -1, 1, 11.0))
pocket3 = doc.addObject("PartDesign::Pocket", "Pocket002")
body.addObject(pocket3)
pocket3.Profile = sketch4
pocket3.Length = 3.1

# Sketch on YZ plane
sketch5 = doc.addObject("Sketcher::SketchObject", "Sketch004")
body.addObject(sketch5)
sketch5.AttachmentSupport = (doc.YZ_Plane, [""])
sketch5.MapMode = "FlatFace"
sketch5.AttachmentOffset = App.Placement(Vector(0, 0, -30), App.Rotation())
add_polygon(sketch5, [(37, 0), (-37, 0), (-37, 8), (37, 8)])  # lines 0-3
sketch5.addConstraint(Sketcher.Constraint("Horizontal", 0))
sketch5.addConstraint(Sketcher.Constraint("Vertical", 1))
sketch5.addConstraint(Sketcher.Constraint("Horizontal", 2))
sketch5.addConstraint(Sketcher.Constraint("Vertical", 3))
sketch5.addConstraint(Sketcher.Constraint("Symmetric", 0, 2, 3, 2, -1, 1))
sketch5.addConstraint(Sketcher.Constraint("DistanceX", 0, 2, 0, 1, 74.0))
sketch5.addConstraint(Sketcher.Constraint("DistanceY", 1, 1, 1, 2, 8.0))
pocket4 = doc.addObject("PartDesign::Pocket", "Pocket003")
body.addObject(pocket4)
pocket4.Profile = sketch5
pocket4.Type = "ThroughAll"
pocket4.Reversed = True

doc.recompute()
